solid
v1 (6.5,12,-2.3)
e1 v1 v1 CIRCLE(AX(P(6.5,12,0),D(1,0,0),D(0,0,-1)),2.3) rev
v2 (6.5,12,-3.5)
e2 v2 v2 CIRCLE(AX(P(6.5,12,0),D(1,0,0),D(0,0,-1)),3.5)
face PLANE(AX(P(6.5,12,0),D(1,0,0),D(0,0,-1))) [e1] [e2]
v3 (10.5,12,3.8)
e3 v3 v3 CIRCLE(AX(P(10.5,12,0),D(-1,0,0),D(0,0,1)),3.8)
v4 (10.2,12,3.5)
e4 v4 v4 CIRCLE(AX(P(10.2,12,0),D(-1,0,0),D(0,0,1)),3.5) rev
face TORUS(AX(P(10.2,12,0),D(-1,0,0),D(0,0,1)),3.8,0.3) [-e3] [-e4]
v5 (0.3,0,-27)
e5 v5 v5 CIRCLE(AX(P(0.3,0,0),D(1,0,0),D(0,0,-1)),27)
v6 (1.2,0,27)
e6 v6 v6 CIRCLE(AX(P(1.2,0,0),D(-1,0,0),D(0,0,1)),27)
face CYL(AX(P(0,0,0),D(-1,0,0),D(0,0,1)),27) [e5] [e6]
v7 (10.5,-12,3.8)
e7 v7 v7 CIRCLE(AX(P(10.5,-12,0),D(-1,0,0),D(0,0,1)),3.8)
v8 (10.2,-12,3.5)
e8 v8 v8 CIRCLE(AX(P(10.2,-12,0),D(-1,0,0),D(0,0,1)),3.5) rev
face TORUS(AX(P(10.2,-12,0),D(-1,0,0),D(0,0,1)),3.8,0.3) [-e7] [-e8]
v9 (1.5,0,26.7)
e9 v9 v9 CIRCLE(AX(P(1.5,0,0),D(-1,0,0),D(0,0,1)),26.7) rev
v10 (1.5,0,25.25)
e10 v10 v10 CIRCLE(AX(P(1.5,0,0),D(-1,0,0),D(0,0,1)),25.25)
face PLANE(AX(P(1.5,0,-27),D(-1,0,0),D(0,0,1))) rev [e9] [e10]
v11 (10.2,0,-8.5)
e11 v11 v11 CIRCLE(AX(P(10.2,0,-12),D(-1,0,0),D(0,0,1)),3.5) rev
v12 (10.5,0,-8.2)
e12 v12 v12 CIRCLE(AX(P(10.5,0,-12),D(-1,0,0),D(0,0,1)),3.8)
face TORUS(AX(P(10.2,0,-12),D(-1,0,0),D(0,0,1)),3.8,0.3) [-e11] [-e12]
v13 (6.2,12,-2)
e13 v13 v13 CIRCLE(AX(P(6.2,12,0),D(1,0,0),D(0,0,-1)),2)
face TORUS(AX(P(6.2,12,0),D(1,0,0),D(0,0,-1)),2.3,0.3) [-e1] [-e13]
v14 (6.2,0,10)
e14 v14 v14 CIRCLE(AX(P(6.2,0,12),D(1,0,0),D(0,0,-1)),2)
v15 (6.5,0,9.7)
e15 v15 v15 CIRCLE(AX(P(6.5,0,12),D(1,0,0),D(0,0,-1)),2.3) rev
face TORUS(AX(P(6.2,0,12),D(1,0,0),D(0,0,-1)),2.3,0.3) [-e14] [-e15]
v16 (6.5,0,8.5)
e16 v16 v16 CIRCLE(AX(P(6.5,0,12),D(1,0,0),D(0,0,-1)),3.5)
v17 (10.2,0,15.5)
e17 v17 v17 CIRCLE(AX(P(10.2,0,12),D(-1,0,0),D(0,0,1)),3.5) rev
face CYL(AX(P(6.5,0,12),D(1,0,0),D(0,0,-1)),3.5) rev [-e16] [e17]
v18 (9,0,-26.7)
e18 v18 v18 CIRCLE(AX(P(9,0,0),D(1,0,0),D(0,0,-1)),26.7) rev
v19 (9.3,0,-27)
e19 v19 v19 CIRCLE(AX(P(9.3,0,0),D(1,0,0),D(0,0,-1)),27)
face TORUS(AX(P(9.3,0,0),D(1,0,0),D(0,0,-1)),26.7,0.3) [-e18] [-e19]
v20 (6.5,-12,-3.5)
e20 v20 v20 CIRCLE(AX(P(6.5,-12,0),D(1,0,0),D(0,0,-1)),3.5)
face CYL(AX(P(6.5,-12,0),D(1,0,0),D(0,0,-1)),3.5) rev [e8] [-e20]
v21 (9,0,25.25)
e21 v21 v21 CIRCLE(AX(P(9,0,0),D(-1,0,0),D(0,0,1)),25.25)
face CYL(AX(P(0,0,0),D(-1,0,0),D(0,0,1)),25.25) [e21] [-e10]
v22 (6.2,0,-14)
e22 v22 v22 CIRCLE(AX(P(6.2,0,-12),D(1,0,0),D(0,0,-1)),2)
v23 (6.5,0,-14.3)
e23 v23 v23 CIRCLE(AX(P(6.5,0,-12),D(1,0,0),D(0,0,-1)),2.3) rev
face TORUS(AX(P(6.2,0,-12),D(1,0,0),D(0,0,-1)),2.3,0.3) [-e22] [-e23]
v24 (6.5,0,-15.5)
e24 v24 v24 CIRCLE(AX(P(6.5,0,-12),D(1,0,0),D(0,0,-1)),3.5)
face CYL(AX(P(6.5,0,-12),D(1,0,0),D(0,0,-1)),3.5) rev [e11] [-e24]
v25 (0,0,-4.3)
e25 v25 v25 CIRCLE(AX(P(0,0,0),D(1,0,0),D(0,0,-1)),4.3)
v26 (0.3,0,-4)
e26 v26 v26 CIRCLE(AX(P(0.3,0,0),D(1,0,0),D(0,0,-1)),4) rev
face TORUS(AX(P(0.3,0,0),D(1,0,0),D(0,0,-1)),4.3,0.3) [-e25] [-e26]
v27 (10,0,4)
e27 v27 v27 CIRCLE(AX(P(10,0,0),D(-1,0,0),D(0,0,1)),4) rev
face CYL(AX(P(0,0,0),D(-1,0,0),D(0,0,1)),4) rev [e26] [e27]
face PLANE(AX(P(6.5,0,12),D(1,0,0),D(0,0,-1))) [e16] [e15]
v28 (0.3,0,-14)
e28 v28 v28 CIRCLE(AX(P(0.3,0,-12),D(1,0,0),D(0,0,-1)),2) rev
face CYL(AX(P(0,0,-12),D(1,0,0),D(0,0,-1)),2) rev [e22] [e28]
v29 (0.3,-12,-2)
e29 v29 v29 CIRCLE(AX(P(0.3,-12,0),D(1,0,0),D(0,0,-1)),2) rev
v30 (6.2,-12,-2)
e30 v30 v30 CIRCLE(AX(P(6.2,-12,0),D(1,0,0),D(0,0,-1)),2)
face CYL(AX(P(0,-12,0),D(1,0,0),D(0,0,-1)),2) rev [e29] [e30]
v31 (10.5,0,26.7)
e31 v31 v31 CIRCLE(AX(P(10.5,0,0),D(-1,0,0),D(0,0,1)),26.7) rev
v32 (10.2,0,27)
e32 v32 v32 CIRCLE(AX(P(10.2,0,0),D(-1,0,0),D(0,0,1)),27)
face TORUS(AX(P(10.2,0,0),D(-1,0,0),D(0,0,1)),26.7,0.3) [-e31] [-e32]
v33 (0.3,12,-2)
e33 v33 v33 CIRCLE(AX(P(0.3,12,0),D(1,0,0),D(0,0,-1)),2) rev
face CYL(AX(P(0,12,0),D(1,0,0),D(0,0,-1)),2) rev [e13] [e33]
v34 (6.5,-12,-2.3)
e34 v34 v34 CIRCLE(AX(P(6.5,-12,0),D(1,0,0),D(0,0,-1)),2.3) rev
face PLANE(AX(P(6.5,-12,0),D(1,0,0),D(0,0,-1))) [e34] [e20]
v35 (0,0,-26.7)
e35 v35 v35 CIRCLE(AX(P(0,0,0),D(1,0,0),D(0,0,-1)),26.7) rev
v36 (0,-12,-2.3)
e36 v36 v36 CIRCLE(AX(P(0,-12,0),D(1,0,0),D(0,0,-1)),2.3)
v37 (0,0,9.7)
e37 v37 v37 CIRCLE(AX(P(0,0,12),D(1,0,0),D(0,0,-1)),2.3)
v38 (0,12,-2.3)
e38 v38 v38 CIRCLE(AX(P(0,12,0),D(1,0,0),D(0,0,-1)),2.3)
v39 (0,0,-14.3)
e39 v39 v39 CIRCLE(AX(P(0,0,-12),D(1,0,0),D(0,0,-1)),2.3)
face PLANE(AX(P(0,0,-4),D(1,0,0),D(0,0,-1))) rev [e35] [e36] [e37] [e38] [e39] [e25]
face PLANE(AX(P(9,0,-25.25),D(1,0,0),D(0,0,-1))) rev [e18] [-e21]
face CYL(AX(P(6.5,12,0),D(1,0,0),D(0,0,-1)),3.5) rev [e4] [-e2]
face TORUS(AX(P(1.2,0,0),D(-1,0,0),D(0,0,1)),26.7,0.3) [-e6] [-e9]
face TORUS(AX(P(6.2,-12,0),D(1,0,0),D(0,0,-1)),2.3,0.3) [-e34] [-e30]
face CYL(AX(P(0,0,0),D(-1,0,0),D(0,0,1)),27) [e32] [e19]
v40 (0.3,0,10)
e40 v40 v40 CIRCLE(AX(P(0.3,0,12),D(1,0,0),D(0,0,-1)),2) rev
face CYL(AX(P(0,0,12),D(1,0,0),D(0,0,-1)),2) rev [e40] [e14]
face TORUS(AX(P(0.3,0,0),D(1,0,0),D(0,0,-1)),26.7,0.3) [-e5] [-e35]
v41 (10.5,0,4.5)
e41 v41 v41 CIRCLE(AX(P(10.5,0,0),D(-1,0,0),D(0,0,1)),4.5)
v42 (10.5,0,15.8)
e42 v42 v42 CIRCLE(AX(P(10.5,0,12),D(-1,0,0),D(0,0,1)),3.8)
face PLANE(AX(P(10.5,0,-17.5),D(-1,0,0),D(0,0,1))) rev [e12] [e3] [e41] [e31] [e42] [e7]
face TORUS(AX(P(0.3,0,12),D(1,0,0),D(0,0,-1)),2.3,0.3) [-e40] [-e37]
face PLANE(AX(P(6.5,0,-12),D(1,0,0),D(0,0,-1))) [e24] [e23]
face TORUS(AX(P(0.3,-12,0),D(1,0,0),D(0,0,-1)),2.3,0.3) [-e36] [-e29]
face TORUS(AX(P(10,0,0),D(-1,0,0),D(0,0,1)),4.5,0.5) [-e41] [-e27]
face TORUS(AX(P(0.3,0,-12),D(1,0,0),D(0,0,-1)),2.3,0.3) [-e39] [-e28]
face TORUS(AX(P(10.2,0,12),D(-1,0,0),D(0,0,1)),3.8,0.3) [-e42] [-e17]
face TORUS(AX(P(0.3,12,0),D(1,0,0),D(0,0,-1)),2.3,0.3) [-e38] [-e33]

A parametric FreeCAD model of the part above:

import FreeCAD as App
import Part
import Sketcher


def edges_at(feature, points):
    """Names of the edges that pass closest to the given points."""
    edges = feature.Shape.Edges
    near = lambda p: min(range(len(edges)), key=lambda i: edges[i].distToShape(Part.Vertex(*p))[0])
    return sorted({f"Edge{near(p) + 1}" for p in points})


def add_polygon(sketch, points):
    """Adds a closed chain of lines whose ends are joined by coincident constraints."""
    first, n = sketch.GeometryCount, len(points)
    for a, b in zip(points, points[1:] + points[:1]):
        sketch.addGeometry(Part.LineSegment(App.Vector(*a, 0), App.Vector(*b, 0)), False)
    for i in range(n):
        sketch.addConstraint(Sketcher.Constraint("Coincident", first + i, 2, first + (i + 1) % n, 1))

doc = App.newDocument("Part")
params = doc.addObject("Spreadsheet::Sheet", "Params")
for row, (alias, value) in enumerate([
    ("sketch1_height", "23 mm"),
    ("sketch1_width", "10.5 mm"),
    ("sketch1_width2", "1.5 mm"),
    ("sketch1_height2", "1.75 mm"),
    ("revolution_angle", "360 deg"),
    ("fillet_radius", "0.3 mm"),
    ("sketch2_diameter", "4 mm"),
    ("sketch3_diameter", "7 mm"),
    ("pocket2_length", "4 mm"),
    ("fillet2_radius", "0.3 mm"),
    ("fillet3_radius", "0.5 mm"),
], start=1):
    params.set(f"A{row}", alias)
    params.set(f"B{row}", "=" + value)
    params.setAlias(f"B{row}", alias)

body = doc.addObject("PartDesign::Body", "Body")

# Sketch on XZ plane
sketch1 = body.newObject("Sketcher::SketchObject", "Sketch")
sketch1.AttachmentSupport = (doc.getObject("XZ_Plane"), [""])
sketch1.MapMode = "FlatFace"
add_polygon(sketch1, [(0, -27), (0, -4), (10.5, -4), (10.5, -27), (9, -27), (9, -25.2), (1.5, -25.2), (1.5, -27)])  # lines 0-7
sketch1.addConstraint(Sketcher.Constraint("Vertical", 0))
sketch1.addConstraint(Sketcher.Constraint("Horizontal", 1))
sketch1.addConstraint(Sketcher.Constraint("Vertical", 2))
sketch1.addConstraint(Sketcher.Constraint("Horizontal", 3))
sketch1.addConstraint(Sketcher.Constraint("Vertical", 4))
sketch1.addConstraint(Sketcher.Constraint("Horizontal", 5))
sketch1.addConstraint(Sketcher.Constraint("Vertical", 6))
sketch1.addConstraint(Sketcher.Constraint("Horizontal", 7))
sketch1.addConstraint(Sketcher.Constraint("PointOnObject", 0, 2, -2))
sketch1.addConstraint(Sketcher.Constraint("Horizontal", 3, 2, 6, 2))
sketch1.addConstraint(Sketcher.Constraint("Equal", 3, 7))
sketch1.addConstraint(Sketcher.Constraint("DistanceY", 0, 1, 0, 2, 23.0))
sketch1.addConstraint(Sketcher.Constraint("DistanceX", 1, 1, 1, 2, 10.5))
sketch1.addConstraint(Sketcher.Constraint("DistanceX", 3, 2, 3, 1, 1.5))
sketch1.addConstraint(Sketcher.Constraint("DistanceY", 0, 2, -1, 1, 4.0))
sketch1.addConstraint(Sketcher.Constraint("DistanceY", 4, 1, 4, 2, 1.75))
sketch1.setExpression("Constraints[19]", "Params.sketch1_height")
sketch1.setExpression("Constraints[20]", "Params.sketch1_width")
sketch1.setExpression("Constraints[21]", "Params.sketch1_width2")
sketch1.setExpression("Constraints[23]", "Params.sketch1_height2")
revolution = body.newObject("PartDesign::Revolution", "Revolution")
revolution.Profile = sketch1
revolution.ReferenceAxis = (sketch1, ["H_Axis"])
revolution.setExpression("Angle", "Params.revolution_angle")
doc.recompute()

fillet = body.newObject("PartDesign::Fillet", "Fillet")
fillet.Base = (revolution, edges_at(revolution, [
    (10.5, 0, 27),
    (9, 0, 27),
    (1.5, 0, 27),
    (0, 0, 27),
    (0, 0, 4),
]))
fillet.setExpression("Radius", "Params.fillet_radius")

# Sketch on YZ plane
sketch2 = body.newObject("Sketcher::SketchObject", "Sketch001")
sketch2.AttachmentSupport = (doc.getObject("YZ_Plane"), [""])
sketch2.MapMode = "FlatFace"
sketch2.AttachmentOffset = App.Placement(App.Vector(0, 0, 10.5), App.Rotation())
sketch2.addGeometry(Part.Circle(App.Vector(0, 12, 0), App.Vector(0, 0, 1), 2), False)
sketch2.addGeometry(Part.Circle(App.Vector(12, 0, 0), App.Vector(0, 0, 1), 2), False)
sketch2.addGeometry(Part.Circle(App.Vector(0, -12, 0), App.Vector(0, 0, 1), 2), False)
sketch2.addGeometry(Part.Circle(App.Vector(-12, 0, 0), App.Vector(0, 0, 1), 2), False)
sketch2.addConstraint(Sketcher.Constraint("Equal", 0, 1))
sketch2.addConstraint(Sketcher.Constraint("Equal", 1, 2))
sketch2.addConstraint(Sketcher.Constraint("Equal", 2, 3))
sketch2.addConstraint(Sketcher.Constraint("Symmetric", 0, 3, 2, 3, -1, 1))
sketch2.addConstraint(Sketcher.Constraint("Symmetric", 1, 3, 3, 3, -1, 1))
sketch2.addConstraint(Sketcher.Constraint("PointOnObject", 0, 3, -2))
sketch2.addConstraint(Sketcher.Constraint("PointOnObject", 1, 3, -1))
sketch2.addConstraint(Sketcher.Constraint("Diameter", 0, 4.0))
sketch2.addConstraint(Sketcher.Constraint("DistanceY", -1, 1, 0, 3, 12.0))
sketch2.addConstraint(Sketcher.Constraint("DistanceX", -1, 1, 1, 3, 12.0))
sketch2.setExpression("Constraints[7]", "Params.sketch2_diameter")
pocket1 = body.newObject("PartDesign::Pocket", "Pocket")
pocket1.Profile = sketch2
pocket1.Type = "ThroughAll"

# Sketch on YZ plane
sketch3 = body.newObject("Sketcher::SketchObject", "Sketch002")
sketch3.AttachmentSupport = (doc.getObject("YZ_Plane"), [""])
sketch3.MapMode = "FlatFace"
sketch3.AttachmentOffset = App.Placement(App.Vector(0, 0, 10.5), App.Rotation())
sketch3.addGeometry(Part.Circle(App.Vector(0, 12, 0), App.Vector(0, 0, 1), 3.5), False)
sketch3.addGeometry(Part.Circle(App.Vector(12, 0, 0), App.Vector(0, 0, 1), 3.5), False)
sketch3.addGeometry(Part.Circle(App.Vector(0, -12, 0), App.Vector(0, 0, 1), 3.5), False)
sketch3.addGeometry(Part.Circle(App.Vector(-12, 0, 0), App.Vector(0, 0, 1), 3.5), False)
sketch3.addConstraint(Sketcher.Constraint("Equal", 0, 1))
sketch3.addConstraint(Sketcher.Constraint("Equal", 1, 2))
sketch3.addConstraint(Sketcher.Constraint("Equal", 2, 3))
sketch3.addConstraint(Sketcher.Constraint("Symmetric", 0, 3, 2, 3, -1, 1))
sketch3.addConstraint(Sketcher.Constraint("Symmetric", 1, 3, 3, 3, -1, 1))
sketch3.addConstraint(Sketcher.Constraint("PointOnObject", 0, 3, -2))
sketch3.addConstraint(Sketcher.Constraint("PointOnObject", 1, 3, -1))
sketch3.addConstraint(Sketcher.Constraint("Diameter", 0, 7.0))
sketch3.addConstraint(Sketcher.Constraint("DistanceY", -1, 1, 0, 3, 12.0))
sketch3.addConstraint(Sketcher.Constraint("DistanceX", -1, 1, 1, 3, 12.0))
sketch3.setExpression("Constraints[7]", "Params.sketch3_diameter")
pocket2 = body.newObject("PartDesign::Pocket", "Pocket001")
pocket2.Profile = sketch3
pocket2.setExpression("Length", "Params.pocket2_length")
doc.recompute()

fillet2 = body.newObject("PartDesign::Fillet", "Fillet001")
fillet2.Base = (pocket2, edges_at(pocket2, [
    (0, 0, 14),
    (0, 12, 2),
    (0, 0, -10),
    (0, -12, 2),
    (10.5, 0, 15.5),
    (6.5, 0, 14),
    (10.5, -12, 3.5),
    (6.5, -12, 2),
    (10.5, 0, -8.5),
    (6.5, 0, -10),
    (10.5, 12, 3.5),
    (6.5, 12, 2),
]))
fillet2.setExpression("Radius", "Params.fillet2_radius")
doc.recompute()

fillet3 = body.newObject("PartDesign::Fillet", "Fillet002")
fillet3.Base = (fillet2, edges_at(fillet2, [(10.5, 0, 4)]))
fillet3.setExpression("Radius", "Params.fillet3_radius")

doc.recompute()
